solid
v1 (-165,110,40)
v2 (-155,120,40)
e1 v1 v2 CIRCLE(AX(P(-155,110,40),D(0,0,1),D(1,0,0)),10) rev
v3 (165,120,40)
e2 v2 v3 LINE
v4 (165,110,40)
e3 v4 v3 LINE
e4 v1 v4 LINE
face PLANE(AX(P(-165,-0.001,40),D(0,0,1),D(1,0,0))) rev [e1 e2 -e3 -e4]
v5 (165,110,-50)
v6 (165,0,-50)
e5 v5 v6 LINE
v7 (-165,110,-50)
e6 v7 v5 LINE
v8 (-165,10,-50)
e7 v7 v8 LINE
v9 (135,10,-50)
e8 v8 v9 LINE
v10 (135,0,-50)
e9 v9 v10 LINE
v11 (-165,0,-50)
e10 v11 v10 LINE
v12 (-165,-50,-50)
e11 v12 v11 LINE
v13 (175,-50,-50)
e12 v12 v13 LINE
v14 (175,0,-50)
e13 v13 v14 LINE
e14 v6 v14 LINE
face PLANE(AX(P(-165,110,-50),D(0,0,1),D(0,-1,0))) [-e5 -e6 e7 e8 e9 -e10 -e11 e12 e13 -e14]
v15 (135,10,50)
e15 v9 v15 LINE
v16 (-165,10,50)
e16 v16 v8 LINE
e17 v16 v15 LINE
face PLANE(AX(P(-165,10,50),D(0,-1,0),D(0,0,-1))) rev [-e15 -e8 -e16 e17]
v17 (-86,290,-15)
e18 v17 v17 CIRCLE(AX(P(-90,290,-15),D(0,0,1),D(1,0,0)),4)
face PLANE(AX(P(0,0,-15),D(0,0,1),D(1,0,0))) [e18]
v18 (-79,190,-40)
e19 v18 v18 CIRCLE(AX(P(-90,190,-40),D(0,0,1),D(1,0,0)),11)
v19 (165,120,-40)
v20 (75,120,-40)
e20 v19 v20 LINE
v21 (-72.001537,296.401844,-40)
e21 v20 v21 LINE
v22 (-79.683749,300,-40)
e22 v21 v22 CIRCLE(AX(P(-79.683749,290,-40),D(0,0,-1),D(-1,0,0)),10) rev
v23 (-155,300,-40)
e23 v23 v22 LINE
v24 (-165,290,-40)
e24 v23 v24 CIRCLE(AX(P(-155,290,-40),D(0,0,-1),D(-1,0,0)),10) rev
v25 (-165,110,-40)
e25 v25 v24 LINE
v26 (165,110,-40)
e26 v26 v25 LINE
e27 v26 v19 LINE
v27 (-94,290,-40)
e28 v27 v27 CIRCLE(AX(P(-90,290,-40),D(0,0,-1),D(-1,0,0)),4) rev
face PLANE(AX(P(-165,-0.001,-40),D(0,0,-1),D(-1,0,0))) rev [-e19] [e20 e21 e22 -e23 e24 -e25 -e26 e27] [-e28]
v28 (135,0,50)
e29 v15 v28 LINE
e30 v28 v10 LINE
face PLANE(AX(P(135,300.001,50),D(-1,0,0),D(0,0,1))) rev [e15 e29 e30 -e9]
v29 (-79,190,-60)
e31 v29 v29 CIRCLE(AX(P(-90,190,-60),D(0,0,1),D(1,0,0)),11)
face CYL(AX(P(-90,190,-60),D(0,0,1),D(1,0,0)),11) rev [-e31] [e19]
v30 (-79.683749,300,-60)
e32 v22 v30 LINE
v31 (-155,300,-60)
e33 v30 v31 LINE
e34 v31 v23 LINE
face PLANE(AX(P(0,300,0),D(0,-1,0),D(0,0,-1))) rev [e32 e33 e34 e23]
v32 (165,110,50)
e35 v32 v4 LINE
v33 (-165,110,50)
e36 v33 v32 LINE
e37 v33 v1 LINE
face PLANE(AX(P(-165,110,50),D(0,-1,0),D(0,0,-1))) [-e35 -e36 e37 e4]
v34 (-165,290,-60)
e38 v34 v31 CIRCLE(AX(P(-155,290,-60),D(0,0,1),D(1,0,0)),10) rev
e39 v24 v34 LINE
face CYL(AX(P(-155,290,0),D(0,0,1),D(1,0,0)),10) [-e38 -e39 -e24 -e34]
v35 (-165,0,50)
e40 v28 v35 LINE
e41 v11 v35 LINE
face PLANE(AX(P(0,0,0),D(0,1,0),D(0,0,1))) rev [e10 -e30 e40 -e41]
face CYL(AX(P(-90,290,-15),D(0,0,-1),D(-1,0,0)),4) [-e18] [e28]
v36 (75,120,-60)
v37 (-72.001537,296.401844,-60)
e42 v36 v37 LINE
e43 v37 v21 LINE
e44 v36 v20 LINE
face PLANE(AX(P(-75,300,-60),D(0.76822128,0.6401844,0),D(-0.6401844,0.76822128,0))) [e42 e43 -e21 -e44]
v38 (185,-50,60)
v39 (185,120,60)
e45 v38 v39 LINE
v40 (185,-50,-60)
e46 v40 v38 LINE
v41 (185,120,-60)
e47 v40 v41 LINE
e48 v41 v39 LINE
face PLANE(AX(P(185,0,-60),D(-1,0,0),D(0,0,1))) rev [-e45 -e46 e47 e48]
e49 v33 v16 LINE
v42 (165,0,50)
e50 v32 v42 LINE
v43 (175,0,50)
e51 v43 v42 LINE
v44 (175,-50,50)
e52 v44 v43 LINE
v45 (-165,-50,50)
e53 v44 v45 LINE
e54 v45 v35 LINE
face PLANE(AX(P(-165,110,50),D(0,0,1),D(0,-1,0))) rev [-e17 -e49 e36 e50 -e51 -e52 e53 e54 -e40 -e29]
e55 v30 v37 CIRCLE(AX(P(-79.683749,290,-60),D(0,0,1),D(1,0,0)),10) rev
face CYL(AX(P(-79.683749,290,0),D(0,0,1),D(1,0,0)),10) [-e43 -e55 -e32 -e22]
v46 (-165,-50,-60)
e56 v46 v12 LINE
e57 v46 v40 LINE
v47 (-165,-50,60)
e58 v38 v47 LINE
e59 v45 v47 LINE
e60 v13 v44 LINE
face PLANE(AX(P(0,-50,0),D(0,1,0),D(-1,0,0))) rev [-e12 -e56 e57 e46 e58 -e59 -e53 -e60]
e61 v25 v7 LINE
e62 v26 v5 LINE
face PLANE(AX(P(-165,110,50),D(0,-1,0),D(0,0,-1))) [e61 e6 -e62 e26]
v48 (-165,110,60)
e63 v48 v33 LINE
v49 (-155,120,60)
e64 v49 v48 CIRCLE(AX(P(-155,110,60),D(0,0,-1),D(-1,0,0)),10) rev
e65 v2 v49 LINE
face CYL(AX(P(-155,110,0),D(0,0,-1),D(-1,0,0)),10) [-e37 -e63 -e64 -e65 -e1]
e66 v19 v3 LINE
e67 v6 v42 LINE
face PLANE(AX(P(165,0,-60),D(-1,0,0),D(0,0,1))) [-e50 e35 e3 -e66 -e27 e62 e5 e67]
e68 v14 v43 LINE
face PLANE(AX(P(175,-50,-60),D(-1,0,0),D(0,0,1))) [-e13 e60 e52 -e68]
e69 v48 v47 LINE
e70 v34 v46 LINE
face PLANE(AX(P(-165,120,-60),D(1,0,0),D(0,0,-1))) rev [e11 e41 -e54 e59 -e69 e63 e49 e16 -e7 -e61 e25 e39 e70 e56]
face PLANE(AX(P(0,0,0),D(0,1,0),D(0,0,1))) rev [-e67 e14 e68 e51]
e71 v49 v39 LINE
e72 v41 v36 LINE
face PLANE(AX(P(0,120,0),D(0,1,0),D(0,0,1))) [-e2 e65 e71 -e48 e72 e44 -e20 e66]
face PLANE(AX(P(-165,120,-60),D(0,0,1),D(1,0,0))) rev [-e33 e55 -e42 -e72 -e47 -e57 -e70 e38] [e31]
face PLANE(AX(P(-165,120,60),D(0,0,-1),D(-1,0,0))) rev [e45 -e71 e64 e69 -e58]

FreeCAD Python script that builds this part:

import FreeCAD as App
import Part
import Sketcher

V = App.Vector
Q = App.Units.Quantity


def edges_at(feature, points):
    """Names of the edges that pass closest to the given points."""
    edges = feature.Shape.Edges
    near = lambda p: min(range(len(edges)), key=lambda i: edges[i].distToShape(Part.Vertex(*p))[0])
    return sorted({f"Edge{near(p) + 1}" for p in points})

doc = App.newDocument("Part")
params = doc.addObject("Spreadsheet::Sheet", "Params")
for row, (alias, value) in enumerate([
    ("sketch1_width", "330 mm"),
    ("sketch1_height", "120 mm"),
    ("pad1_length", "120 mm"),
    ("sketch2_width", "100 mm"),
    ("sketch3_width", "330 mm"),
    ("sketch3_height", "80 mm"),
    ("sketch4_width", "40 mm"),
    ("sketch4_height", "20 mm"),
    ("pad2_length", "180 mm"),
    ("sketch5_diameter", "8 mm"),
    ("pad3_length", "25 mm"),
    ("sketch6_width", "20 mm"),
    ("sketch6_height", "120 mm"),
    ("pad4_length", "120 mm"),
    ("sketch7_width", "30 mm"),
    ("sketch7_height", "100 mm"),
    ("sketch8_width", "350 mm"),
    ("sketch8_width2", "340 mm"),
    ("sketch8_height", "120 mm"),
    ("sketch8_height2", "10 mm"),
    ("pad5_length", "50 mm"),
    ("sketch9_width", "150 mm"),
    ("sketch9_height", "180 mm"),
    ("pad6_length", "20 mm"),
    ("fillet_radius", "10 mm"),
    ("sketch10_diameter", "22 mm"),
    ("sketch11_width", "50 mm"),
    ("sketch11_height", "20 mm"),
    ("pad7_length", "180 mm"),
    ("fillet2_radius", "10 mm"),
], start=1):
    params.set(f"A{row}", alias)
    params.set(f"B{row}", "=" + value)
    params.setAlias(f"B{row}", alias)

body = doc.addObject("PartDesign::Body", "Body")

# Sketch on XZ plane
sketch1 = body.newObject("Sketcher::SketchObject", "Sketch")
sketch1.AttachmentSupport = (doc.getObject("XZ_Plane"), [""])
sketch1.MapMode = "FlatFace"
sketch1.addGeometry(Part.LineSegment(V(-165, -60, 0), V(-165, 60, 0)), False)
sketch1.addGeometry(Part.LineSegment(V(-165, 60, 0), V(165, 60, 0)), False)
sketch1.addGeometry(Part.LineSegment(V(165, 60, 0), V(165, -60, 0)), False)
sketch1.addGeometry(Part.LineSegment(V(165, -60, 0), V(-165, -60, 0)), False)
sketch1.addConstraint(Sketcher.Constraint("Coincident", 0, 2, 1, 1))
sketch1.addConstraint(Sketcher.Constraint("Coincident", 1, 2, 2, 1))
sketch1.addConstraint(Sketcher.Constraint("Coincident", 2, 2, 3, 1))
sketch1.addConstraint(Sketcher.Constraint("Coincident", 3, 2, 0, 1))
sketch1.addConstraint(Sketcher.Constraint("Vertical", 0))
sketch1.addConstraint(Sketcher.Constraint("Horizontal", 1))
sketch1.addConstraint(Sketcher.Constraint("Vertical", 2))
sketch1.addConstraint(Sketcher.Constraint("Horizontal", 3))
sketch1.addConstraint(Sketcher.Constraint("Symmetric", 0, 2, 2, 2, -1, 1))
sketch1.addConstraint(Sketcher.Constraint("DistanceX", 1, 1, 1, 2, Q("330 mm")))
sketch1.addConstraint(Sketcher.Constraint("DistanceY", 0, 1, 0, 2, Q("120 mm")))
sketch1.setExpression("Constraints[9]", "Params.sketch1_width")
sketch1.setExpression("Constraints[10]", "Params.sketch1_height")
pad1 = body.newObject("PartDesign::Pad", "Pad")
pad1.Profile = sketch1
pad1.setExpression("Length", "Params.pad1_length")
pad1.Reversed = True

# Sketch on YZ plane
sketch2 = body.newObject("Sketcher::SketchObject", "Sketch001")
sketch2.AttachmentSupport = (doc.getObject("YZ_Plane"), [""])
sketch2.MapMode = "FlatFace"
sketch2.AttachmentOffset = App.Placement(V(0, 0, 165), App.Rotation())
sketch2.addGeometry(Part.LineSegment(V(110, 50, 0), V(10, 50, 0)), False)
sketch2.addGeometry(Part.LineSegment(V(10, 50, 0), V(10, -50, 0)), False)
sketch2.addGeometry(Part.LineSegment(V(10, -50, 0), V(110, -50, 0)), False)
sketch2.addGeometry(Part.LineSegment(V(110, -50, 0), V(110, 50, 0)), False)
sketch2.addConstraint(Sketcher.Constraint("Coincident", 0, 2, 1, 1))
sketch2.addConstraint(Sketcher.Constraint("Coincident", 1, 2, 2, 1))
sketch2.addConstraint(Sketcher.Constraint("Coincident", 2, 2, 3, 1))
sketch2.addConstraint(Sketcher.Constraint("Coincident", 3, 2, 0, 1))
sketch2.addConstraint(Sketcher.Constraint("Horizontal", 0))
sketch2.addConstraint(Sketcher.Constraint("Vertical", 1))
sketch2.addConstraint(Sketcher.Constraint("Horizontal", 2))
sketch2.addConstraint(Sketcher.Constraint("Vertical", 3))
sketch2.addConstraint(Sketcher.Constraint("Equal", 2, 1))
sketch2.addConstraint(Sketcher.Constraint("DistanceX", 0, 2, 0, 1, Q("100 mm")))
sketch2.addConstraint(Sketcher.Constraint("DistanceX", -1, 1, 0, 2, Q("10 mm")))
sketch2.addConstraint(Sketcher.Constraint("DistanceY", -1, 1, 0, 2, Q("50 mm")))
sketch2.setExpression("Constraints[9]", "Params.sketch2_width")
pocket1 = body.newObject("PartDesign::Pocket", "Pocket")
pocket1.Profile = sketch2
pocket1.Type = "ThroughAll"

# Sketch on XZ plane
sketch3 = body.newObject("Sketcher::SketchObject", "Sketch002")
sketch3.AttachmentSupport = (doc.getObject("XZ_Plane"), [""])
sketch3.MapMode = "FlatFace"
sketch3.AttachmentOffset = App.Placement(V(0, 0, -120), App.Rotation())
sketch3.addGeometry(Part.LineSegment(V(-165, -40, 0), V(-165, 40, 0)), False)
sketch3.addGeometry(Part.LineSegment(V(-165, 40, 0), V(165, 40, 0)), False)
sketch3.addGeometry(Part.LineSegment(V(165, 40, 0), V(165, -40, 0)), False)
sketch3.addGeometry(Part.LineSegment(V(165, -40, 0), V(-165, -40, 0)), False)
sketch3.addConstraint(Sketcher.Constraint("Coincident", 0, 2, 1, 1))
sketch3.addConstraint(Sketcher.Constraint("Coincident", 1, 2, 2, 1))
sketch3.addConstraint(Sketcher.Constraint("Coincident", 2, 2, 3, 1))
sketch3.addConstraint(Sketcher.Constraint("Coincident", 3, 2, 0, 1))
sketch3.addConstraint(Sketcher.Constraint("Vertical", 0))
sketch3.addConstraint(Sketcher.Constraint("Horizontal", 1))
sketch3.addConstraint(Sketcher.Constraint("Vertical", 2))
sketch3.addConstraint(Sketcher.Constraint("Horizontal", 3))
sketch3.addConstraint(Sketcher.Constraint("Symmetric", 0, 2, 2, 2, -1, 1))
sketch3.addConstraint(Sketcher.Constraint("DistanceX", 1, 1, 1, 2, Q("330 mm")))
sketch3.addConstraint(Sketcher.Constraint("DistanceY", 0, 1, 0, 2, Q("80 mm")))
sketch3.setExpression("Constraints[9]", "Params.sketch3_width")
sketch3.setExpression("Constraints[10]", "Params.sketch3_height")
pocket2 = body.newObject("PartDesign::Pocket", "Pocket001")
pocket2.Profile = sketch3
pocket2.Type = "UpToFirst"
pocket2.Reversed = True

# Sketch on XZ plane
sketch4 = body.newObject("Sketcher::SketchObject", "Sketch003")
sketch4.AttachmentSupport = (doc.getObject("XZ_Plane"), [""])
sketch4.MapMode = "FlatFace"
sketch4.AttachmentOffset = App.Placement(V(0, 0, -120), App.Rotation())
sketch4.addGeometry(Part.LineSegment(V(-115, -60, 0), V(-115, -40, 0)), False)
sketch4.addGeometry(Part.LineSegment(V(-115, -40, 0), V(-75, -40, 0)), False)
sketch4.addGeometry(Part.LineSegment(V(-75, -40, 0), V(-75, -60, 0)), False)
sketch4.addGeometry(Part.LineSegment(V(-75, -60, 0), V(-115, -60, 0)), False)
sketch4.addConstraint(Sketcher.Constraint("Coincident", 0, 2, 1, 1))
sketch4.addConstraint(Sketcher.Constraint("Coincident", 1, 2, 2, 1))
sketch4.addConstraint(Sketcher.Constraint("Coincident", 2, 2, 3, 1))
sketch4.addConstraint(Sketcher.Constraint("Coincident", 3, 2, 0, 1))
sketch4.addConstraint(Sketcher.Constraint("Vertical", 0))
sketch4.addConstraint(Sketcher.Constraint("Horizontal", 1))
sketch4.addConstraint(Sketcher.Constraint("Vertical", 2))
sketch4.addConstraint(Sketcher.Constraint("Horizontal", 3))
sketch4.addConstraint(Sketcher.Constraint("DistanceX", 1, 1, 1, 2, Q("40 mm")))
sketch4.addConstraint(Sketcher.Constraint("DistanceY", 0, 1, 0, 2, Q("20 mm")))
sketch4.addConstraint(Sketcher.Constraint("DistanceX", 0, 2, -1, 1, Q("115 mm")))
sketch4.addConstraint(Sketcher.Constraint("DistanceY", 0, 2, -1, 1, Q("40 mm")))
sketch4.setExpression("Constraints[8]", "Params.sketch4_width")
sketch4.setExpression("Constraints[9]", "Params.sketch4_height")
pad2 = body.newObject("PartDesign::Pad", "Pad001")
pad2.Profile = sketch4
pad2.setExpression("Length", "Params.pad2_length")
pad2.Reversed = True

# Sketch on XY plane
sketch5 = body.newObject("Sketcher::SketchObject", "Sketch004")
sketch5.AttachmentSupport = (doc.getObject("XY_Plane"), [""])
sketch5.MapMode = "FlatFace"
sketch5.AttachmentOffset = App.Placement(V(0, 0, -40), App.Rotation())
sketch5.addGeometry(Part.Circle(V(-90, 290, 0), V(0, 0, 1), 4), False)
sketch5.addConstraint(Sketcher.Constraint("Diameter", 0, Q("8 mm")))
sketch5.addConstraint(Sketcher.Constraint("DistanceX", 0, 3, -1, 1, Q("90 mm")))
sketch5.addConstraint(Sketcher.Constraint("DistanceY", -1, 1, 0, 3, Q("290 mm")))
sketch5.setExpression("Constraints[0]", "Params.sketch5_diameter")
pad3 = body.newObject("PartDesign::Pad", "Pad002")
pad3.Profile = sketch5
pad3.setExpression("Length", "Params.pad3_length")

# Sketch on XZ plane
sketch6 = body.newObject("Sketcher::SketchObject", "Sketch005")
sketch6.AttachmentSupport = (doc.getObject("XZ_Plane"), [""])
sketch6.MapMode = "FlatFace"
sketch6.AttachmentOffset = App.Placement(V(0, 0, -120), App.Rotation())
sketch6.addGeometry(Part.LineSegment(V(165, -60, 0), V(165, 60, 0)), False)
sketch6.addGeometry(Part.LineSegment(V(165, 60, 0), V(185, 60, 0)), False)
sketch6.addGeometry(Part.LineSegment(V(185, 60, 0), V(185, -60, 0)), False)
sketch6.addGeometry(Part.LineSegment(V(185, -60, 0), V(165, -60, 0)), False)
sketch6.addConstraint(Sketcher.Constraint("Coincident", 0, 2, 1, 1))
sketch6.addConstraint(Sketcher.Constraint("Coincident", 1, 2, 2, 1))
sketch6.addConstraint(Sketcher.Constraint("Coincident", 2, 2, 3, 1))
sketch6.addConstraint(Sketcher.Constraint("Coincident", 3, 2, 0, 1))
sketch6.addConstraint(Sketcher.Constraint("Vertical", 0))
sketch6.addConstraint(Sketcher.Constraint("Horizontal", 1))
sketch6.addConstraint(Sketcher.Constraint("Vertical", 2))
sketch6.addConstraint(Sketcher.Constraint("Horizontal", 3))
sketch6.addConstraint(Sketcher.Constraint("DistanceX", 1, 1, 1, 2, Q("20 mm")))
sketch6.addConstraint(Sketcher.Constraint("DistanceY", 0, 1, 0, 2, Q("120 mm")))
sketch6.addConstraint(Sketcher.Constraint("DistanceX", -1, 1, 0, 2, Q("165 mm")))
sketch6.addConstraint(Sketcher.Constraint("DistanceY", -1, 1, 0, 2, Q("60 mm")))
sketch6.setExpression("Constraints[8]", "Params.sketch6_width")
sketch6.setExpression("Constraints[9]", "Params.sketch6_height")
pad4 = body.newObject("PartDesign::Pad", "Pad003")
pad4.Profile = sketch6
pad4.setExpression("Length", "Params.pad4_length")

# Sketch on XZ plane
sketch7 = body.newObject("Sketcher::SketchObject", "Sketch006")
sketch7.AttachmentSupport = (doc.getObject("XZ_Plane"), [""])
sketch7.MapMode = "FlatFace"
sketch7.addGeometry(Part.LineSegment(V(135, 50, 0), V(135, -50, 0)), False)
sketch7.addGeometry(Part.LineSegment(V(135, -50, 0), V(165, -50, 0)), False)
sketch7.addGeometry(Part.LineSegment(V(165, -50, 0), V(165, 50, 0)), False)
sketch7.addGeometry(Part.LineSegment(V(165, 50, 0), V(135, 50, 0)), False)
sketch7.addConstraint(Sketcher.Constraint("Coincident", 0, 2, 1, 1))
sketch7.addConstraint(Sketcher.Constraint("Coincident", 1, 2, 2, 1))
sketch7.addConstraint(Sketcher.Constraint("Coincident", 2, 2, 3, 1))
sketch7.addConstraint(Sketcher.Constraint("Coincident", 3, 2, 0, 1))
sketch7.addConstraint(Sketcher.Constraint("Vertical", 0))
sketch7.addConstraint(Sketcher.Constraint("Horizontal", 1))
sketch7.addConstraint(Sketcher.Constraint("Vertical", 2))
sketch7.addConstraint(Sketcher.Constraint("Horizontal", 3))
sketch7.addConstraint(Sketcher.Constraint("DistanceX", 1, 1, 1, 2, Q("30 mm")))
sketch7.addConstraint(Sketcher.Constraint("DistanceY", 0, 2, 0, 1, Q("100 mm")))
sketch7.addConstraint(Sketcher.Constraint("DistanceX", -1, 1, 0, 2, Q("135 mm")))
sketch7.addConstraint(Sketcher.Constraint("DistanceY", 0, 2, -1, 1, Q("50 mm")))
sketch7.setExpression("Constraints[8]", "Params.sketch7_width")
sketch7.setExpression("Constraints[9]", "Params.sketch7_height")
pocket3 = body.newObject("PartDesign::Pocket", "Pocket002")
pocket3.Profile = sketch7
pocket3.Type = "UpToFirst"

# Sketch on XZ plane
sketch8 = body.newObject("Sketcher::SketchObject", "Sketch007")
sketch8.AttachmentSupport = (doc.getObject("XZ_Plane"), [""])
sketch8.MapMode = "FlatFace"
sketch8.addGeometry(Part.LineSegment(V(-165, -60, 0), V(185, -60, 0)), False)
sketch8.addGeometry(Part.LineSegment(V(185, -60, 0), V(185, 60, 0)), False)
sketch8.addGeometry(Part.LineSegment(V(185, 60, 0), V(-165, 60, 0)), False)
sketch8.addGeometry(Part.LineSegment(V(-165, 60, 0), V(-165, 50, 0)), False)
sketch8.addGeometry(Part.LineSegment(V(-165, 50, 0), V(175, 50, 0)), False)
sketch8.addGeometry(Part.LineSegment(V(175, 50, 0), V(175, -50, 0)), False)
sketch8.addGeometry(Part.LineSegment(V(175, -50, 0), V(-165, -50, 0)), False)
sketch8.addGeometry(Part.LineSegment(V(-165, -50, 0), V(-165, -60, 0)), False)
sketch8.addConstraint(Sketcher.Constraint("Coincident", 0, 2, 1, 1))
sketch8.addConstraint(Sketcher.Constraint("Coincident", 1, 2, 2, 1))
sketch8.addConstraint(Sketcher.Constraint("Coincident", 2, 2, 3, 1))
sketch8.addConstraint(Sketcher.Constraint("Coincident", 3, 2, 4, 1))
sketch8.addConstraint(Sketcher.Constraint("Coincident", 4, 2, 5, 1))
sketch8.addConstraint(Sketcher.Constraint("Coincident", 5, 2, 6, 1))
sketch8.addConstraint(Sketcher.Constraint("Coincident", 6, 2, 7, 1))
sketch8.addConstraint(Sketcher.Constraint("Coincident", 7, 2, 0, 1))
sketch8.addConstraint(Sketcher.Constraint("Horizontal", 0))
sketch8.addConstraint(Sketcher.Constraint("Vertical", 1))
sketch8.addConstraint(Sketcher.Constraint("Horizontal", 2))
sketch8.addConstraint(Sketcher.Constraint("Vertical", 3))
sketch8.addConstraint(Sketcher.Constraint("Horizontal", 4))
sketch8.addConstraint(Sketcher.Constraint("Vertical", 5))
sketch8.addConstraint(Sketcher.Constraint("Horizontal", 6))
sketch8.addConstraint(Sketcher.Constraint("Vertical", 7))
sketch8.addConstraint(Sketcher.Constraint("Symmetric", 3, 2, 6, 2, -1))
sketch8.addConstraint(Sketcher.Constraint("Equal", 3, 7))
sketch8.addConstraint(Sketcher.Constraint("DistanceX", 0, 1, 0, 2, Q("350 mm")))
sketch8.addConstraint(Sketcher.Constraint("DistanceX", 4, 1, 4, 2, Q("340 mm")))
sketch8.addConstraint(Sketcher.Constraint("DistanceY", 1, 1, 1, 2, Q("120 mm")))
sketch8.addConstraint(Sketcher.Constraint("DistanceY", 3, 2, 3, 1, Q("10 mm")))
sketch8.addConstraint(Sketcher.Constraint("DistanceX", -1, 1, 0, 2, Q("185 mm")))
sketch8.setExpression("Constraints[18]", "Params.sketch8_width")
sketch8.setExpression("Constraints[19]", "Params.sketch8_width2")
sketch8.setExpression("Constraints[20]", "Params.sketch8_height")
sketch8.setExpression("Constraints[21]", "Params.sketch8_height2")
pad5 = body.newObject("PartDesign::Pad", "Pad004")
pad5.Profile = sketch8
pad5.setExpression("Length", "Params.pad5_length")

# Sketch on XY plane
sketch9 = body.newObject("Sketcher::SketchObject", "Sketch008")
sketch9.AttachmentSupport = (doc.getObject("XY_Plane"), [""])
sketch9.MapMode = "FlatFace"
sketch9.AttachmentOffset = App.Placement(V(0, 0, -40), App.Rotation())
sketch9.addGeometry(Part.LineSegment(V(75, 120, 0), V(-75, 300, 0)), False)
sketch9.addGeometry(Part.LineSegment(V(-75, 300, 0), V(-75, 120, 0)), False)
sketch9.addGeometry(Part.LineSegment(V(-75, 120, 0), V(75, 120, 0)), False)
sketch9.addConstraint(Sketcher.Constraint("Coincident", 0, 2, 1, 1))
sketch9.addConstraint(Sketcher.Constraint("Coincident", 1, 2, 2, 1))
sketch9.addConstraint(Sketcher.Constraint("Coincident", 2, 2, 0, 1))
sketch9.addConstraint(Sketcher.Constraint("Vertical", 1))
sketch9.addConstraint(Sketcher.Constraint("Horizontal", 2))
sketch9.addConstraint(Sketcher.Constraint("DistanceX", 2, 1, 2, 2, Q("150 mm")))
sketch9.addConstraint(Sketcher.Constraint("DistanceY", 1, 2, 1, 1, Q("180 mm")))
sketch9.addConstraint(Sketcher.Constraint("DistanceX", 0, 2, -1, 1, Q("75 mm")))
sketch9.addConstraint(Sketcher.Constraint("DistanceY", -1, 1, 0, 2, Q("300 mm")))
sketch9.setExpression("Constraints[5]", "Params.sketch9_width")
sketch9.setExpression("Constraints[6]", "Params.sketch9_height")
pad6 = body.newObject("PartDesign::Pad", "Pad005")
pad6.Profile = sketch9
pad6.setExpression("Length", "Params.pad6_length")
pad6.Reversed = True
doc.recompute()

fillet = body.newObject("PartDesign::Fillet", "Fillet")
fillet.Base = (pad6, edges_at(pad6, [(-75, 300, -50)]))
fillet.setExpression("Radius", "Params.fillet_radius")

# Sketch on XY plane
sketch10 = body.newObject("Sketcher::SketchObject", "Sketch009")
sketch10.AttachmentSupport = (doc.getObject("XY_Plane"), [""])
sketch10.MapMode = "FlatFace"
sketch10.AttachmentOffset = App.Placement(V(0, 0, -40), App.Rotation())
sketch10.addGeometry(Part.Circle(V(-90, 190, 0), V(0, 0, 1), 11), False)
sketch10.addConstraint(Sketcher.Constraint("Diameter", 0, Q("22 mm")))
sketch10.addConstraint(Sketcher.Constraint("DistanceX", 0, 3, -1, 1, Q("90 mm")))
sketch10.addConstraint(Sketcher.Constraint("DistanceY", -1, 1, 0, 3, Q("190 mm")))
sketch10.setExpression("Constraints[0]", "Params.sketch10_diameter")
pocket4 = body.newObject("PartDesign::Pocket", "Pocket003")
pocket4.Profile = sketch10
pocket4.Type = "ThroughAll"

# Sketch on XZ plane
sketch11 = body.newObject("Sketcher::SketchObject", "Sketch010")
sketch11.AttachmentSupport = (doc.getObject("XZ_Plane"), [""])
sketch11.MapMode = "FlatFace"
sketch11.AttachmentOffset = App.Placement(V(0, 0, -120), App.Rotation())
sketch11.addGeometry(Part.LineSegment(V(-165, -60, 0), V(-165, -40, 0)), False)
sketch11.addGeometry(Part.LineSegment(V(-165, -40, 0), V(-115, -40, 0)), False)
sketch11.addGeometry(Part.LineSegment(V(-115, -40, 0), V(-115, -60, 0)), False)
sketch11.addGeometry(Part.LineSegment(V(-115, -60, 0), V(-165, -60, 0)), False)
sketch11.addConstraint(Sketcher.Constraint("Coincident", 0, 2, 1, 1))
sketch11.addConstraint(Sketcher.Constraint("Coincident", 1, 2, 2, 1))
sketch11.addConstraint(Sketcher.Constraint("Coincident", 2, 2, 3, 1))
sketch11.addConstraint(Sketcher.Constraint("Coincident", 3, 2, 0, 1))
sketch11.addConstraint(Sketcher.Constraint("Vertical", 0))
sketch11.addConstraint(Sketcher.Constraint("Horizontal", 1))
sketch11.addConstraint(Sketcher.Constraint("Vertical", 2))
sketch11.addConstraint(Sketcher.Constraint("Horizontal", 3))
sketch11.addConstraint(Sketcher.Constraint("DistanceX", 1, 1, 1, 2, Q("50 mm")))
sketch11.addConstraint(Sketcher.Constraint("DistanceY", 0, 1, 0, 2, Q("20 mm")))
sketch11.addConstraint(Sketcher.Constraint("DistanceX", 0, 2, -1, 1, Q("165 mm")))
sketch11.addConstraint(Sketcher.Constraint("DistanceY", 0, 2, -1, 1, Q("40 mm")))
sketch11.setExpression("Constraints[8]", "Params.sketch11_width")
sketch11.setExpression("Constraints[9]", "Params.sketch11_height")
pad7 = body.newObject("PartDesign::Pad", "Pad006")
pad7.Profile = sketch11
pad7.setExpression("Length", "Params.pad7_length")
pad7.Reversed = True
doc.recompute()

fillet2 = body.newObject("PartDesign::Fillet", "Fillet001")
fillet2.Base = (pad7, edges_at(pad7, [(-165, 120, 50), (-165, 300, -50)]))
fillet2.setExpression("Radius", "Params.fillet2_radius")

doc.recompute()
